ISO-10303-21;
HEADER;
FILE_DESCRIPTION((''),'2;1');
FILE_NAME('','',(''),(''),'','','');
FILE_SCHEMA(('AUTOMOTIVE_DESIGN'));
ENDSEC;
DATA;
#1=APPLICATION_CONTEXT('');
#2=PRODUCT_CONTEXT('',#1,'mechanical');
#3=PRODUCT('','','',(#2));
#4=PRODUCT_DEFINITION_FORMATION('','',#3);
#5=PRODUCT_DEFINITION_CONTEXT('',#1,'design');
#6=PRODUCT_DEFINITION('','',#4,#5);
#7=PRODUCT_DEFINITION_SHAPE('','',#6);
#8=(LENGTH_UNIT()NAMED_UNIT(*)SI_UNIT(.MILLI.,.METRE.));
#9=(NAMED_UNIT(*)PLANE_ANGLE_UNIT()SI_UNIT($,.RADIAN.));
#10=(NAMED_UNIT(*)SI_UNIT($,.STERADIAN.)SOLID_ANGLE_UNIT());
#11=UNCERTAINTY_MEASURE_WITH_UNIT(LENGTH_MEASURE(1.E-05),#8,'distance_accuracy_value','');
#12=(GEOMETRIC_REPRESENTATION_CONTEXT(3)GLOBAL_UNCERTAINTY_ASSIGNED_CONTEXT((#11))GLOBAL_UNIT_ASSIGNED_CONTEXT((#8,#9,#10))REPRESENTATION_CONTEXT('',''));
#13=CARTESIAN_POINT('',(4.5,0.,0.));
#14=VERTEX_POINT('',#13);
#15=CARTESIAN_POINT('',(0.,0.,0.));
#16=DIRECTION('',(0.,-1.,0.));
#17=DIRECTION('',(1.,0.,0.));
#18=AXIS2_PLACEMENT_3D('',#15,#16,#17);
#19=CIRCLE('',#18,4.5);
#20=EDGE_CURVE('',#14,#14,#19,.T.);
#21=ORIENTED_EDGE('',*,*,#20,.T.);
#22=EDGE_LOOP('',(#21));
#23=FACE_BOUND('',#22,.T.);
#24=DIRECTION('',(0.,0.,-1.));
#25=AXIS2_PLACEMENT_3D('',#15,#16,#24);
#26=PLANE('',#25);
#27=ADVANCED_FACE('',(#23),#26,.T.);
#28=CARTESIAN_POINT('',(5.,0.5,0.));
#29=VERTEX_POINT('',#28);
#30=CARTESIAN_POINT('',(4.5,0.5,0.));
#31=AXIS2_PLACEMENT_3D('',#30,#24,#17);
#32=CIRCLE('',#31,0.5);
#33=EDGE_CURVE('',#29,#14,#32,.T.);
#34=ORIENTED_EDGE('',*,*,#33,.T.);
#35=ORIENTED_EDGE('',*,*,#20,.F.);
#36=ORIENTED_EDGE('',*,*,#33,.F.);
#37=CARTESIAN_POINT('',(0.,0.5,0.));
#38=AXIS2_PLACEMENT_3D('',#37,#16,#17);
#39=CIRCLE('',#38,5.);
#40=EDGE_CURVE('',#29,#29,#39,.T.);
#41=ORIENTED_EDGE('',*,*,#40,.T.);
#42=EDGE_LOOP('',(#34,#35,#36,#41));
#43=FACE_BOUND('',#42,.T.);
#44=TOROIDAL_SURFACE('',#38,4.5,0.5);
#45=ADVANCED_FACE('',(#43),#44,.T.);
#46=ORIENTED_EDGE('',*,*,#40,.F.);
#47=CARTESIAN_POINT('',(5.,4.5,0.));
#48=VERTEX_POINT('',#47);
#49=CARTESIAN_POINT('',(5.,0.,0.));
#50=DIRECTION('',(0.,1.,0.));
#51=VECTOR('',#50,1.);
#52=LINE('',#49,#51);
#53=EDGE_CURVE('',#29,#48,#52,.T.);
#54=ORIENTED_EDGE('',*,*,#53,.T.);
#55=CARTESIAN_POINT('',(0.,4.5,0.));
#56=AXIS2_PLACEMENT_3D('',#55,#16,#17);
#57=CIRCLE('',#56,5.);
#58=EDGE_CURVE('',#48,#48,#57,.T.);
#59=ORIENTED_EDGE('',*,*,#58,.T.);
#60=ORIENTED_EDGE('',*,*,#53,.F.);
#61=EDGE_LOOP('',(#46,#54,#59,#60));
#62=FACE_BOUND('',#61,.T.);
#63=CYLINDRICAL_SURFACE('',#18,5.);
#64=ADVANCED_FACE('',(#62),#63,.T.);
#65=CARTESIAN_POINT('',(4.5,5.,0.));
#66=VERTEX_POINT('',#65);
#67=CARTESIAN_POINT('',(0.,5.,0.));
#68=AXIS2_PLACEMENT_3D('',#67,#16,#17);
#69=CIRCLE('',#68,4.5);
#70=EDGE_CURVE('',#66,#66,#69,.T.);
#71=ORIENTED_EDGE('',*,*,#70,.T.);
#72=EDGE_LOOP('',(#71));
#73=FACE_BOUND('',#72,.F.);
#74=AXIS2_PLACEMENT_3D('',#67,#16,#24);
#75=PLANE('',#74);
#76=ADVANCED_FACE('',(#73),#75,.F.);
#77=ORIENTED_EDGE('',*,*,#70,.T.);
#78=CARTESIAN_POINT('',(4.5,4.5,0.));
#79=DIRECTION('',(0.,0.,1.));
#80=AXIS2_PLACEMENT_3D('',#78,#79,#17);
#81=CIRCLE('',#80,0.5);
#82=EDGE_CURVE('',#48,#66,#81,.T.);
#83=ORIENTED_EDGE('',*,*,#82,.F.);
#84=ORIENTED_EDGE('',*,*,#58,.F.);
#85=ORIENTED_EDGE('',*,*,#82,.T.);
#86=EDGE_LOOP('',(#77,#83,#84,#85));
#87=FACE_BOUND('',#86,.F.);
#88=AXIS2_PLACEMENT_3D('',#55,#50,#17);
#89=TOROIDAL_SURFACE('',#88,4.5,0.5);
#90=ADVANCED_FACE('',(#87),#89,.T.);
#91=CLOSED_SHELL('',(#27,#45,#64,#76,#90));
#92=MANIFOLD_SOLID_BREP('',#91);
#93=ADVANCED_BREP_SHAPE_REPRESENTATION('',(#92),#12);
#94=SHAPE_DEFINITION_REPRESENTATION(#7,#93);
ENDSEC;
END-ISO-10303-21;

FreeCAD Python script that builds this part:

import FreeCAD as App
import Part
import Sketcher


def edges_at(feature, points):
    """Names of the edges that pass closest to the given points."""
    edges = feature.Shape.Edges
    near = lambda p: min(range(len(edges)), key=lambda i: edges[i].distToShape(Part.Vertex(*p))[0])
    return sorted({f"Edge{near(p) + 1}" for p in points})

doc = App.newDocument("Part")
body = doc.addObject("PartDesign::Body", "Body")

# Sketch on XZ plane
sketch1 = body.newObject("Sketcher::SketchObject", "Sketch")
sketch1.AttachmentSupport = (doc.getObject("XZ_Plane"), [""])
sketch1.MapMode = "FlatFace"
sketch1.addGeometry(Part.Circle(App.Vector(0, 0, 0), App.Vector(0, 0, 1), 5), False)
sketch1.addConstraint([
    Sketcher.Constraint("Coincident", 0, 3, -1, 1),
    Sketcher.Constraint("Diameter", 0, 10.0),
])
pad1 = body.newObject("PartDesign::Pad", "Pad")
pad1.Profile = sketch1
pad1.Length = 5
pad1.Reversed = True
doc.recompute()

fillet = body.newObject("PartDesign::Fillet", "Fillet")
fillet.Base = (pad1, edges_at(pad1, [(-5, 0, 0), (-5, 5, 0)]))
fillet.Radius = 0.5

doc.recompute()
